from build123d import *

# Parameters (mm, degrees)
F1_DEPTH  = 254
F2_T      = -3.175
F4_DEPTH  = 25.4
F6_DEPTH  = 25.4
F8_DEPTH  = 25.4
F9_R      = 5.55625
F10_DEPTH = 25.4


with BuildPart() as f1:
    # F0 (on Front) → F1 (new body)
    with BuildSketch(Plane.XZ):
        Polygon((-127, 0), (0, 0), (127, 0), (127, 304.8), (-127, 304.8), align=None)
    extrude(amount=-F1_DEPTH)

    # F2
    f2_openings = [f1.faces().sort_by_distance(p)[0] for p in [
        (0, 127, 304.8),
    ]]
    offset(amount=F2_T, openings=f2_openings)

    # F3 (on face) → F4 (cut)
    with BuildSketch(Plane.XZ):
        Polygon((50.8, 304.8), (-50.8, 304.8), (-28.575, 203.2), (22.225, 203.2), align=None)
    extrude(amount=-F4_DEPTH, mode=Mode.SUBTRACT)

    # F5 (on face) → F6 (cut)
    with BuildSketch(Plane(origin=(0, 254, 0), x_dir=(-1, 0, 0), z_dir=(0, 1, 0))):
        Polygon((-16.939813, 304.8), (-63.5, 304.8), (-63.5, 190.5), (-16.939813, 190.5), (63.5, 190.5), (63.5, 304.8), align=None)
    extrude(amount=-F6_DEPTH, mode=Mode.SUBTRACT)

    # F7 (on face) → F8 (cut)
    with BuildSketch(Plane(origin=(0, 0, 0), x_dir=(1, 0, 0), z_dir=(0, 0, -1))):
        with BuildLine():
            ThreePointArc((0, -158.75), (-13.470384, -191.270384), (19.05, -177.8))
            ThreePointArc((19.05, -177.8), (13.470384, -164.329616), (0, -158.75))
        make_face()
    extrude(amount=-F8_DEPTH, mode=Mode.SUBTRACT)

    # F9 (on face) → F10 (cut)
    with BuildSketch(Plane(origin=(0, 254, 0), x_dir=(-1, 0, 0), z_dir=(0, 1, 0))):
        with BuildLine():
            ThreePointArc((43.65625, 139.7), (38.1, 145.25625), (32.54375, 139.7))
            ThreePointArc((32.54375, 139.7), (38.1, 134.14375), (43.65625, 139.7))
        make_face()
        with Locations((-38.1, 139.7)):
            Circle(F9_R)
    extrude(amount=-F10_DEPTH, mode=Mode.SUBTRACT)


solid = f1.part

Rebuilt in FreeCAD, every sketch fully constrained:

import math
import FreeCAD as App
import Part
import Sketcher
Q = App.Units.Quantity


def faces_at(feature, points):
    """Names of the faces that lie closest to the given points."""
    faces = feature.Shape.Faces
    near = lambda p: min(range(len(faces)), key=lambda i: faces[i].distToShape(Part.Vertex(*p))[0])
    return sorted({f"Face{near(p) + 1}" for p in points})


def add_polygon(sketch, points):
    """Adds a closed chain of lines whose ends are joined by coincident constraints."""
    first, n = sketch.GeometryCount, len(points)
    for a, b in zip(points, points[1:] + points[:1]):
        sketch.addGeometry(Part.LineSegment(App.Vector(*a, 0), App.Vector(*b, 0)), False)
    for i in range(n):
        sketch.addConstraint(Sketcher.Constraint("Coincident", first + i, 2, first + (i + 1) % n, 1))

doc = App.newDocument("Part")
params = doc.addObject("Spreadsheet::Sheet", "Params")
for row, (alias, value) in enumerate([
    ("sketch1_width", "10 in"),
    ("sketch1_height", "12 in"),
    ("pad1_length", "10 in"),
    ("thickness_wall", "0.125 in"),
    ("sketch2_width", "4 in"),
    ("sketch2_width2", "2 in"),
    ("pocket1_length", "1 in"),
    ("sketch3_width", "5 in"),
    ("sketch3_height", "4.5 in"),
    ("pocket2_length", "1 in"),
    ("sketch4_radius", "0.75 in"),
    ("pocket3_length", "1 in"),
    ("sketch5_diameter", "0.4375 in"),
    ("pocket4_length", "1 in"),
], start=1):
    params.set(f"A{row}", alias)
    params.set(f"B{row}", "=" + value)
    params.setAlias(f"B{row}", alias)

body = doc.addObject("PartDesign::Body", "Body")

# Sketch on XZ plane
sketch1 = doc.addObject("Sketcher::SketchObject", "Sketch")
body.addObject(sketch1)
sketch1.AttachmentSupport = (doc.XZ_Plane, [""])
sketch1.MapMode = "FlatFace"
add_polygon(sketch1, [(-127, 0), (127, 0), (127, 304.8), (-127, 304.8)])  # lines 0-3
sketch1.addConstraint(Sketcher.Constraint("Horizontal", 0))
sketch1.addConstraint(Sketcher.Constraint("Vertical", 1))
sketch1.addConstraint(Sketcher.Constraint("Horizontal", 2))
sketch1.addConstraint(Sketcher.Constraint("Vertical", 3))
sketch1.addConstraint(Sketcher.Constraint("Symmetric", 0, 2, 3, 2, -1, 1))
sketch1.addConstraint(Sketcher.Constraint("DistanceX", 0, 1, 0, 2, Q("10 in")))
sketch1.addConstraint(Sketcher.Constraint("DistanceY", 1, 1, 1, 2, Q("12 in")))
sketch1.setExpression("Constraints[9]", "Params.sketch1_width")
sketch1.setExpression("Constraints[10]", "Params.sketch1_height")
pad1 = doc.addObject("PartDesign::Pad", "Pad")
body.addObject(pad1)
pad1.Profile = sketch1
pad1.setExpression("Length", "Params.pad1_length")
pad1.Reversed = True
doc.recompute()

thickness = doc.addObject("PartDesign::Thickness", "Thickness")
body.addObject(thickness)
thickness.Base = (pad1, faces_at(pad1, [(0, 127, 304.8)]))
thickness.setExpression("Value", "Params.thickness_wall")
thickness.Reversed = True
thickness.Join = "Arc"

# Sketch on XZ plane
sketch2 = doc.addObject("Sketcher::SketchObject", "Sketch001")
body.addObject(sketch2)
sketch2.AttachmentSupport = (doc.XZ_Plane, [""])
sketch2.MapMode = "FlatFace"
add_polygon(sketch2, [(50.8, 304.8), (-50.8, 304.8), (-28.575, 203.2), (22.225, 203.2)])  # lines 0-3
sketch2.addConstraint(Sketcher.Constraint("Horizontal", 0))
sketch2.addConstraint(Sketcher.Constraint("Horizontal", 2))
sketch2.addConstraint(Sketcher.Constraint("DistanceX", 0, 2, 0, 1, Q("4 in")))
sketch2.addConstraint(Sketcher.Constraint("DistanceX", 2, 1, 2, 2, Q("2 in")))
sketch2.addConstraint(Sketcher.Constraint("DistanceX", 0, 2, -1, 1, Q("2 in")))
sketch2.addConstraint(Sketcher.Constraint("DistanceY", -1, 1, 0, 2, Q("12 in")))
sketch2.addConstraint(Sketcher.Constraint("DistanceY", -1, 1, 1, 2, Q("8 in")))
sketch2.addConstraint(Sketcher.Constraint("DistanceX", 1, 2, -1, 1, Q("1.125 in")))
sketch2.setExpression("Constraints[6]", "Params.sketch2_width")
sketch2.setExpression("Constraints[7]", "Params.sketch2_width2")
pocket1 = doc.addObject("PartDesign::Pocket", "Pocket")
body.addObject(pocket1)
pocket1.Profile = sketch2
pocket1.setExpression("Length", "Params.pocket1_length")

# Sketch on XZ plane
sketch3 = doc.addObject("Sketcher::SketchObject", "Sketch002")
body.addObject(sketch3)
sketch3.AttachmentSupport = (doc.XZ_Plane, [""])
sketch3.MapMode = "FlatFace"
sketch3.AttachmentOffset = App.Placement(App.Vector(0, 0, -10 * 25.4), App.Rotation())
add_polygon(sketch3, [(63.5, 304.8), (63.5, 190.5), (-63.5, 190.5), (-63.5, 304.8)])  # lines 0-3
sketch3.addConstraint(Sketcher.Constraint("Vertical", 0))
sketch3.addConstraint(Sketcher.Constraint("Horizontal", 1))
sketch3.addConstraint(Sketcher.Constraint("Vertical", 2))
sketch3.addConstraint(Sketcher.Constraint("Horizontal", 3))
sketch3.addConstraint(Sketcher.Constraint("DistanceX", 1, 2, 1, 1, Q("5 in")))
sketch3.addConstraint(Sketcher.Constraint("DistanceY", 0, 2, 0, 1, Q("4.5 in")))
sketch3.addConstraint(Sketcher.Constraint("DistanceY", -1, 1, 2, 2, Q("12 in")))
sketch3.addConstraint(Sketcher.Constraint("DistanceX", -1, 1, 0, 2, Q("2.5 in")))
sketch3.setExpression("Constraints[8]", "Params.sketch3_width")
sketch3.setExpression("Constraints[9]", "Params.sketch3_height")
pocket2 = doc.addObject("PartDesign::Pocket", "Pocket001")
body.addObject(pocket2)
pocket2.Profile = sketch3
pocket2.setExpression("Length", "Params.pocket2_length")
pocket2.Reversed = True

# Sketch on XY plane
sketch4 = doc.addObject("Sketcher::SketchObject", "Sketch003")
body.addObject(sketch4)
sketch4.AttachmentSupport = (doc.XY_Plane, [""])
sketch4.MapMode = "FlatFace"
sketch4.addGeometry(Part.ArcOfCircle(Part.Circle(App.Vector(0, 177.8, 0), App.Vector(0, 0, 1), 19.05), math.radians(0), math.radians(270)), False)
sketch4.addGeometry(Part.ArcOfCircle(Part.Circle(App.Vector(-0.000001, 177.800001, 0), App.Vector(0, 0, 1), 19.050001), math.radians(-89.999998), math.radians(-0.000002)), False)
sketch4.addConstraint(Sketcher.Constraint("Tangent", 0, 1, 1, 2))
sketch4.addConstraint(Sketcher.Constraint("Coincident", 1, 1, 0, 2))
sketch4.addConstraint(Sketcher.Constraint("PointOnObject", 0, 3, -2))
sketch4.addConstraint(Sketcher.Constraint("PointOnObject", 1, 1, -2))
sketch4.addConstraint(Sketcher.Constraint("Horizontal", 1, 3, 0, 1))
sketch4.addConstraint(Sketcher.Constraint("Radius", 0, Q("0.75 in")))
sketch4.addConstraint(Sketcher.Constraint("DistanceY", -1, 1, 0, 3, Q("7 in")))
sketch4.setExpression("Constraints[5]", "Params.sketch4_radius")
pocket3 = doc.addObject("PartDesign::Pocket", "Pocket002")
body.addObject(pocket3)
pocket3.Profile = sketch4
pocket3.setExpression("Length", "Params.pocket3_length")
pocket3.Reversed = True

# Sketch on XZ plane
sketch5 = doc.addObject("Sketcher::SketchObject", "Sketch004")
body.addObject(sketch5)
sketch5.AttachmentSupport = (doc.XZ_Plane, [""])
sketch5.MapMode = "FlatFace"
sketch5.AttachmentOffset = App.Placement(App.Vector(0, 0, -10 * 25.4), App.Rotation())
sketch5.addGeometry(Part.Circle(App.Vector(-38.1, 139.7, 0), App.Vector(0, 0, 1), 5.55625), False)
sketch5.addGeometry(Part.Circle(App.Vector(38.1, 139.7, 0), App.Vector(0, 0, 1), 5.55625), False)
sketch5.addConstraint(Sketcher.Constraint("Equal", 0, 1))
sketch5.addConstraint(Sketcher.Constraint("Symmetric", 0, 3, 1, 3, -2))
sketch5.addConstraint(Sketcher.Constraint("Diameter", 0, Q("0.4375 in")))
sketch5.addConstraint(Sketcher.Constraint("DistanceX", 0, 3, 1, 3, Q("3 in")))
sketch5.addConstraint(Sketcher.Constraint("DistanceY", -1, 1, 0, 3, Q("5.5 in")))
sketch5.setExpression("Constraints[2]", "Params.sketch5_diameter")
pocket4 = doc.addObject("PartDesign::Pocket", "Pocket003")
body.addObject(pocket4)
pocket4.Profile = sketch5
pocket4.setExpression("Length", "Params.pocket4_length")
pocket4.Reversed = True

doc.recompute()
